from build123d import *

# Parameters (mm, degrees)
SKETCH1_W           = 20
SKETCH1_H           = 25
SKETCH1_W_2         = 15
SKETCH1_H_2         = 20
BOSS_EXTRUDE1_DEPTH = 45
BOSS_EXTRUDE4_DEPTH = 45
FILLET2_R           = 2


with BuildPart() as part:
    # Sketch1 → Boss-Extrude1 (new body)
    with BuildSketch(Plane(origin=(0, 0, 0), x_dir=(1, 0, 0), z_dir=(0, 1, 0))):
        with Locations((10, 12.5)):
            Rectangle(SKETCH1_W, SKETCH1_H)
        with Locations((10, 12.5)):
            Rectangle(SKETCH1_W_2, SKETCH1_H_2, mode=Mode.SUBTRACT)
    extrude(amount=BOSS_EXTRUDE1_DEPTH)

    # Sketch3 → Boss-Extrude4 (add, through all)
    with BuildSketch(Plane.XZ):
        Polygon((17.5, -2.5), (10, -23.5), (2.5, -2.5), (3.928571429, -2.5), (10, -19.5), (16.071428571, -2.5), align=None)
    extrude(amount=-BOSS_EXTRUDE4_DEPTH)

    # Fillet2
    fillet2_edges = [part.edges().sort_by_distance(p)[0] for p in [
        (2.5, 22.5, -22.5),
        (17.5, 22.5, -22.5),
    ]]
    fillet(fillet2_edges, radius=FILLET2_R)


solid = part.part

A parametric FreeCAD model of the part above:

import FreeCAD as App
import Part
import Sketcher


def edges_at(feature, points):
    """Names of the edges that pass closest to the given points."""
    edges = feature.Shape.Edges
    near = lambda p: min(range(len(edges)), key=lambda i: edges[i].distToShape(Part.Vertex(*p))[0])
    return sorted({f"Edge{near(p) + 1}" for p in points})


def add_polygon(sketch, points):
    """Adds a closed chain of lines whose ends are joined by coincident constraints."""
    first, n = sketch.GeometryCount, len(points)
    for a, b in zip(points, points[1:] + points[:1]):
        sketch.addGeometry(Part.LineSegment(App.Vector(*a, 0), App.Vector(*b, 0)), False)
    for i in range(n):
        sketch.addConstraint(Sketcher.Constraint("Coincident", first + i, 2, first + (i + 1) % n, 1))

doc = App.newDocument("Part")
body = doc.addObject("PartDesign::Body", "Body")

# Sketch on XZ plane
sketch1 = doc.addObject("Sketcher::SketchObject", "Sketch")
body.addObject(sketch1)
sketch1.AttachmentSupport = (doc.XZ_Plane, [""])
sketch1.MapMode = "FlatFace"
add_polygon(sketch1, [(0, -25), (0, 0), (20, 0), (20, -25)])  # lines 0-3
add_polygon(sketch1, [(18, -2), (2, -2), (2, -22), (18, -22)])  # lines 4-7
sketch1.addConstraint([
    Sketcher.Constraint("Vertical", 0),
    Sketcher.Constraint("Horizontal", 1),
    Sketcher.Constraint("Vertical", 2),
    Sketcher.Constraint("Horizontal", 3),
    Sketcher.Constraint("Horizontal", 4),
    Sketcher.Constraint("Vertical", 5),
    Sketcher.Constraint("Horizontal", 6),
    Sketcher.Constraint("Vertical", 7),
    Sketcher.Constraint("Coincident", 0, 2, -1, 1),
    Sketcher.Constraint("Equal", 3, 5),
    Sketcher.Constraint("DistanceX", 1, 1, 1, 2, 20.0),
    Sketcher.Constraint("DistanceX", 4, 2, 4, 1, 15.0),
    Sketcher.Constraint("DistanceY", 0, 1, 0, 2, 25.0),
    Sketcher.Constraint("DistanceX", -1, 1, 4, 2, 2.5),
    Sketcher.Constraint("DistanceY", 4, 2, -1, 1, 2.5),
])
pad1 = doc.addObject("PartDesign::Pad", "Pad")
body.addObject(pad1)
pad1.Profile = sketch1
pad1.Length = 45
pad1.Reversed = True

# Sketch on XZ plane
sketch2 = doc.addObject("Sketcher::SketchObject", "Sketch001")
body.addObject(sketch2)
sketch2.AttachmentSupport = (doc.XZ_Plane, [""])
sketch2.MapMode = "FlatFace"
add_polygon(sketch2, [(10, -23.5), (17.5, -2.5), (16.1, -2.5), (10, -19.5), (3.9, -2.5), (2.5, -2.5)])  # lines 0-5
sketch2.addConstraint([
    Sketcher.Constraint("Horizontal", 1),
    Sketcher.Constraint("Horizontal", 4),
    Sketcher.Constraint("Parallel", 0, 2),
    Sketcher.Constraint("Parallel", 3, 5),
    Sketcher.Constraint("Horizontal", 1, 2, 3, 2),
    Sketcher.Constraint("Vertical", 2, 2, 5, 2),
    Sketcher.Constraint("Equal", 1, 4),
    Sketcher.Constraint("DistanceX", -1, 1, 2, 2, 10.0),
    Sketcher.Constraint("DistanceY", 2, 2, 1, 2, 17.0),
    Sketcher.Constraint("DistanceX", 4, 2, 0, 2, 15.0),
    Sketcher.Constraint("DistanceY", 5, 2, 2, 2, 4.0),
    Sketcher.Constraint("DistanceY", 0, 2, -1, 1, 2.5),
])
pad2 = doc.addObject("PartDesign::Pad", "Pad001")
body.addObject(pad2)
pad2.Profile = sketch2
pad2.Length = 45
pad2.Reversed = True
doc.recompute()

fillet = doc.addObject("PartDesign::Fillet", "Fillet")
body.addObject(fillet)
fillet.Base = (pad2, edges_at(pad2, [(2.5, 22.5, -22.5), (17.5, 22.5, -22.5)]))
fillet.Radius = 2

doc.recompute()
